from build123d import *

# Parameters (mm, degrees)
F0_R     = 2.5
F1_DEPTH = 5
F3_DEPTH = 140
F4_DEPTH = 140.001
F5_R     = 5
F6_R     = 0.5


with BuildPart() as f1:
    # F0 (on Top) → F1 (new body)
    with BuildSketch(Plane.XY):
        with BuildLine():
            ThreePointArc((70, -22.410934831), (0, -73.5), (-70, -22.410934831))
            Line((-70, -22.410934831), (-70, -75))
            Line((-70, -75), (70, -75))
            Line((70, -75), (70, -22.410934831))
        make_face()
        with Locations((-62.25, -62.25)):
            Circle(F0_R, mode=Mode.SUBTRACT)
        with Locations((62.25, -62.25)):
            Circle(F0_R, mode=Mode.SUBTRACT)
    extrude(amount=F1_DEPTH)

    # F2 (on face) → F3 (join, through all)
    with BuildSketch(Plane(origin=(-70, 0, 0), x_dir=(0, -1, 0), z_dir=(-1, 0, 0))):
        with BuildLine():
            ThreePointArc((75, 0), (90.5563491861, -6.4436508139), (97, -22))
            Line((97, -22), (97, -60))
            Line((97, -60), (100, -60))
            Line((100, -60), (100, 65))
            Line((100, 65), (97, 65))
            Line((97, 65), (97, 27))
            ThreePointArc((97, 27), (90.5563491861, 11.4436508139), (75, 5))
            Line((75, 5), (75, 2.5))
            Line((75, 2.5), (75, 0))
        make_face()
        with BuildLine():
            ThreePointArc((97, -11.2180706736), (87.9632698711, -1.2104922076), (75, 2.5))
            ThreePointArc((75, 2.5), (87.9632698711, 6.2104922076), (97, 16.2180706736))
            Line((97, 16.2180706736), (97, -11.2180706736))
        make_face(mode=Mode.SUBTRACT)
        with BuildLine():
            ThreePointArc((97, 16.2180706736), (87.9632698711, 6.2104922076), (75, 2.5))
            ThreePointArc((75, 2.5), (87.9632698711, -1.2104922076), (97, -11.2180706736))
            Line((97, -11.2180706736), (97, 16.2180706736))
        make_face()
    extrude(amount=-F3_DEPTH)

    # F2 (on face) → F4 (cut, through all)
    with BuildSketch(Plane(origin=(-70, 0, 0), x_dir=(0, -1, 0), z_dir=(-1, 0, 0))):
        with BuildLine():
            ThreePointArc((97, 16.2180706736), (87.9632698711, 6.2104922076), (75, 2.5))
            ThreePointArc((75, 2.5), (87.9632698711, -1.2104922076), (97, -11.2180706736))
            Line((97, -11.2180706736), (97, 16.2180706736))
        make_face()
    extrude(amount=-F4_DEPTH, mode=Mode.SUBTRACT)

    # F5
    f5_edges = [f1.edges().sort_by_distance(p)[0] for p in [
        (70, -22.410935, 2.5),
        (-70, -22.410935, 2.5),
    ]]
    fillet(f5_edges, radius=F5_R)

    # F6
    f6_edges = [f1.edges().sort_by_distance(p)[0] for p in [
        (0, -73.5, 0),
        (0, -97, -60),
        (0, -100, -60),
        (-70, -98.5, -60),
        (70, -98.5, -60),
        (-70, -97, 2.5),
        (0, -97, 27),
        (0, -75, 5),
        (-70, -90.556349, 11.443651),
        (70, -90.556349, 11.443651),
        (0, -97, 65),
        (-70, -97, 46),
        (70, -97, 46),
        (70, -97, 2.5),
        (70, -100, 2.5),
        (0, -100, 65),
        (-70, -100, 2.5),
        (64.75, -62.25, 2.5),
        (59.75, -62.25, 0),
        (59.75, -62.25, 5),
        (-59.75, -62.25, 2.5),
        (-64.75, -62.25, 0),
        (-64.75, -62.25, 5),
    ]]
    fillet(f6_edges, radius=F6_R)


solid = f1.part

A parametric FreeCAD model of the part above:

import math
import FreeCAD as App
import Part
import Sketcher


def edges_at(feature, points):
    """Names of the edges that pass closest to the given points."""
    edges = feature.Shape.Edges
    near = lambda p: min(range(len(edges)), key=lambda i: edges[i].distToShape(Part.Vertex(*p))[0])
    return sorted({f"Edge{near(p) + 1}" for p in points})

doc = App.newDocument("Part")
params = doc.addObject("Spreadsheet::Sheet", "Params")
for row, (alias, value) in enumerate([
    ("sketch1_diameter", "5 mm"),
    ("sketch1_radius", "73.5 mm"),
    ("sketch1_width", "140 mm"),
    ("pad1_length", "5 mm"),
    ("sketch2_radius", "22 mm"),
    ("sketch2_width", "3 mm"),
    ("sketch2_height", "5 mm"),
    ("sketch2_height2", "38 mm"),
    ("pad2_length", "140 mm"),
    ("sketch3_radius", "24.5 mm"),
    ("fillet_radius", "5 mm"),
    ("fillet2_radius", "0.5 mm"),
], start=1):
    params.set(f"A{row}", alias)
    params.set(f"B{row}", "=" + value)
    params.setAlias(f"B{row}", alias)

body = doc.addObject("PartDesign::Body", "Body")

sketch1 = body.newObject("Sketcher::SketchObject", "Sketch")
sketch1.AttachmentSupport = (doc.getObject("XY_Plane"), [""])
sketch1.MapMode = "FlatFace"
sketch1.addGeometry(Part.ArcOfCircle(Part.Circle(App.Vector(0, 0, 0), App.Vector(0, 0, 1), 73.5), math.radians(-162), math.radians(-18)), False)
sketch1.addGeometry(Part.LineSegment(App.Vector(-70, -22.4, 0), App.Vector(-70, -75, 0)), False)
sketch1.addGeometry(Part.LineSegment(App.Vector(-70, -75, 0), App.Vector(70, -75, 0)), False)
sketch1.addGeometry(Part.LineSegment(App.Vector(70, -75, 0), App.Vector(70, -22.4, 0)), False)
sketch1.addGeometry(Part.Circle(App.Vector(-62.2, -62.2, 0), App.Vector(0, 0, 1), 2.5), False)
sketch1.addGeometry(Part.Circle(App.Vector(62.2, -62.2, 0), App.Vector(0, 0, 1), 2.5), False)
sketch1.addConstraint(Sketcher.Constraint("Coincident", 0, 1, 1, 1))
sketch1.addConstraint(Sketcher.Constraint("Coincident", 1, 2, 2, 1))
sketch1.addConstraint(Sketcher.Constraint("Coincident", 2, 2, 3, 1))
sketch1.addConstraint(Sketcher.Constraint("Coincident", 3, 2, 0, 2))
sketch1.addConstraint(Sketcher.Constraint("Vertical", 1))
sketch1.addConstraint(Sketcher.Constraint("Horizontal", 2))
sketch1.addConstraint(Sketcher.Constraint("Vertical", 3))
sketch1.addConstraint(Sketcher.Constraint("Coincident", 0, 3, -1, 1))
sketch1.addConstraint(Sketcher.Constraint("Equal", 4, 5))
sketch1.addConstraint(Sketcher.Constraint("Symmetric", 4, 3, 5, 3, -2))
sketch1.addConstraint(Sketcher.Constraint("Horizontal", 0, 1, 3, 2))
sketch1.addConstraint(Sketcher.Constraint("Diameter", 4, 5.0))
sketch1.addConstraint(Sketcher.Constraint("Radius", 0, 73.5))
sketch1.addConstraint(Sketcher.Constraint("DistanceX", 2, 1, 2, 2, 140.0))
sketch1.addConstraint(Sketcher.Constraint("DistanceY", 1, 2, -1, 1, 75.0))
sketch1.addConstraint(Sketcher.Constraint("DistanceX", 4, 3, 5, 3, 124.5))
sketch1.addConstraint(Sketcher.Constraint("DistanceY", 4, 3, -1, 1, 62.25))
sketch1.setExpression("Constraints[11]", "Params.sketch1_diameter")
sketch1.setExpression("Constraints[12]", "Params.sketch1_radius")
sketch1.setExpression("Constraints[13]", "Params.sketch1_width")
pad1 = body.newObject("PartDesign::Pad", "Pad")
pad1.Profile = sketch1
pad1.setExpression("Length", "Params.pad1_length")

sketch2 = body.newObject("Sketcher::SketchObject", "Sketch001")
sketch2.AttachmentSupport = (doc.getObject("YZ_Plane"), [""])
sketch2.MapMode = "FlatFace"
sketch2.AttachmentOffset = App.Placement(App.Vector(0, 0, -70), App.Rotation())
sketch2.addGeometry(Part.LineSegment(App.Vector(-75, 5, 0), App.Vector(-75, 0, 0)), False)
sketch2.addGeometry(Part.ArcOfCircle(Part.Circle(App.Vector(-75, -22, 0), App.Vector(0, 0, 1), 22), math.radians(90), math.radians(180)), False)
sketch2.addGeometry(Part.LineSegment(App.Vector(-97, -22, 0), App.Vector(-97, -60, 0)), False)
sketch2.addGeometry(Part.LineSegment(App.Vector(-97, -60, 0), App.Vector(-100, -60, 0)), False)
sketch2.addGeometry(Part.LineSegment(App.Vector(-100, -60, 0), App.Vector(-100, 65, 0)), False)
sketch2.addGeometry(Part.LineSegment(App.Vector(-100, 65, 0), App.Vector(-97, 65, 0)), False)
sketch2.addGeometry(Part.LineSegment(App.Vector(-97, 65, 0), App.Vector(-97, 27, 0)), False)
sketch2.addGeometry(Part.ArcOfCircle(Part.Circle(App.Vector(-75, 27, 0), App.Vector(0, 0, 1), 22), math.radians(180), math.radians(270)), False)
sketch2.addConstraint(Sketcher.Constraint("Coincident", 0, 2, 1, 1))
sketch2.addConstraint(Sketcher.Constraint("Tangent", 1, 2, 2, 1))
sketch2.addConstraint(Sketcher.Constraint("Coincident", 2, 2, 3, 1))
sketch2.addConstraint(Sketcher.Constraint("Coincident", 3, 2, 4, 1))
sketch2.addConstraint(Sketcher.Constraint("Coincident", 4, 2, 5, 1))
sketch2.addConstraint(Sketcher.Constraint("Coincident", 5, 2, 6, 1))
sketch2.addConstraint(Sketcher.Constraint("Tangent", 6, 2, 7, 1))
sketch2.addConstraint(Sketcher.Constraint("Coincident", 7, 2, 0, 1))
sketch2.addConstraint(Sketcher.Constraint("Vertical", 0))
sketch2.addConstraint(Sketcher.Constraint("Vertical", 2))
sketch2.addConstraint(Sketcher.Constraint("Horizontal", 3))
sketch2.addConstraint(Sketcher.Constraint("Vertical", 4))
sketch2.addConstraint(Sketcher.Constraint("Horizontal", 5))
sketch2.addConstraint(Sketcher.Constraint("Vertical", 6))
sketch2.addConstraint(Sketcher.Constraint("Equal", 1, 7))
sketch2.addConstraint(Sketcher.Constraint("PointOnObject", 0, 2, -1))
sketch2.addConstraint(Sketcher.Constraint("Vertical", 1, 3, 7, 3))
sketch2.addConstraint(Sketcher.Constraint("Vertical", 7, 3, 0, 2))
sketch2.addConstraint(Sketcher.Constraint("Equal", 2, 6))
sketch2.addConstraint(Sketcher.Constraint("Radius", 1, 22.0))
sketch2.addConstraint(Sketcher.Constraint("DistanceX", 3, 2, 3, 1, 3.0))
sketch2.addConstraint(Sketcher.Constraint("DistanceY", 0, 2, 0, 1, 5.0))
sketch2.addConstraint(Sketcher.Constraint("DistanceY", 2, 2, 2, 1, 38.0))
sketch2.addConstraint(Sketcher.Constraint("DistanceX", 1, 3, -1, 1, 75.0))
sketch2.setExpression("Constraints[19]", "Params.sketch2_radius")
sketch2.setExpression("Constraints[20]", "Params.sketch2_width")
sketch2.setExpression("Constraints[21]", "Params.sketch2_height")
sketch2.setExpression("Constraints[22]", "Params.sketch2_height2")
pad2 = body.newObject("PartDesign::Pad", "Pad001")
pad2.Profile = sketch2
pad2.setExpression("Length", "Params.pad2_length")

sketch3 = body.newObject("Sketcher::SketchObject", "Sketch002")
sketch3.AttachmentSupport = (doc.getObject("YZ_Plane"), [""])
sketch3.MapMode = "FlatFace"
sketch3.AttachmentOffset = App.Placement(App.Vector(0, 0, -70), App.Rotation())
sketch3.addGeometry(Part.ArcOfCircle(Part.Circle(App.Vector(-75, 27, 0), App.Vector(0, 0, 1), 24), math.radians(-154), math.radians(-90)), False)
sketch3.addGeometry(Part.ArcOfCircle(Part.Circle(App.Vector(-75, -22, 0), App.Vector(0, 0, 1), 24), math.radians(90), math.radians(154)), False)
sketch3.addGeometry(Part.LineSegment(App.Vector(-97, -11, 0), App.Vector(-97, 16, 0)), False)
sketch3.addConstraint(Sketcher.Constraint("Tangent", 0, 2, 1, 1))
sketch3.addConstraint(Sketcher.Constraint("Coincident", 1, 2, 2, 1))
sketch3.addConstraint(Sketcher.Constraint("Coincident", 2, 2, 0, 1))
sketch3.addConstraint(Sketcher.Constraint("Vertical", 2))
sketch3.addConstraint(Sketcher.Constraint("Equal", 0, 1))
sketch3.addConstraint(Sketcher.Constraint("Vertical", 0, 3, 1, 3))
sketch3.addConstraint(Sketcher.Constraint("Radius", 0, 24.5))
sketch3.addConstraint(Sketcher.Constraint("DistanceX", 0, 3, -1, 1, 75.0))
sketch3.addConstraint(Sketcher.Constraint("DistanceY", -1, 1, 0, 3, 27.0))
sketch3.addConstraint(Sketcher.Constraint("DistanceX", 1, 2, -1, 1, 97.0))
sketch3.setExpression("Constraints[6]", "Params.sketch3_radius")
pocket1 = body.newObject("PartDesign::Pocket", "Pocket")
pocket1.Profile = sketch3
pocket1.Type = "ThroughAll"
pocket1.Reversed = True
doc.recompute()

fillet = body.newObject("PartDesign::Fillet", "Fillet")
fillet.Base = (pocket1, edges_at(pocket1, [(70, -22.411, 2.5), (-70, -22.411, 2.5)]))
fillet.setExpression("Radius", "Params.fillet_radius")
doc.recompute()

fillet2 = body.newObject("PartDesign::Fillet", "Fillet001")
fillet2.Base = (fillet, edges_at(fillet, [
    (0, -73.5, 0),
    (0, -97, -60),
    (0, -100, -60),
    (-70, -98.5, -60),
    (70, -98.5, -60),
    (-70, -97, 2.5),
    (0, -97, 27),
    (0, -75, 5),
    (-70, -90.556, 11.444),
    (70, -90.556, 11.444),
    (0, -97, 65),
    (-70, -97, 46),
    (70, -97, 46),
    (70, -97, 2.5),
    (70, -100, 2.5),
    (0, -100, 65),
    (-70, -100, 2.5),
    (64.75, -62.25, 2.5),
    (59.75, -62.25, 0),
    (59.75, -62.25, 5),
    (-59.75, -62.25, 2.5),
    (-64.75, -62.25, 0),
    (-64.75, -62.25, 5),
]))
fillet2.setExpression("Radius", "Params.fillet2_radius")

doc.recompute()
